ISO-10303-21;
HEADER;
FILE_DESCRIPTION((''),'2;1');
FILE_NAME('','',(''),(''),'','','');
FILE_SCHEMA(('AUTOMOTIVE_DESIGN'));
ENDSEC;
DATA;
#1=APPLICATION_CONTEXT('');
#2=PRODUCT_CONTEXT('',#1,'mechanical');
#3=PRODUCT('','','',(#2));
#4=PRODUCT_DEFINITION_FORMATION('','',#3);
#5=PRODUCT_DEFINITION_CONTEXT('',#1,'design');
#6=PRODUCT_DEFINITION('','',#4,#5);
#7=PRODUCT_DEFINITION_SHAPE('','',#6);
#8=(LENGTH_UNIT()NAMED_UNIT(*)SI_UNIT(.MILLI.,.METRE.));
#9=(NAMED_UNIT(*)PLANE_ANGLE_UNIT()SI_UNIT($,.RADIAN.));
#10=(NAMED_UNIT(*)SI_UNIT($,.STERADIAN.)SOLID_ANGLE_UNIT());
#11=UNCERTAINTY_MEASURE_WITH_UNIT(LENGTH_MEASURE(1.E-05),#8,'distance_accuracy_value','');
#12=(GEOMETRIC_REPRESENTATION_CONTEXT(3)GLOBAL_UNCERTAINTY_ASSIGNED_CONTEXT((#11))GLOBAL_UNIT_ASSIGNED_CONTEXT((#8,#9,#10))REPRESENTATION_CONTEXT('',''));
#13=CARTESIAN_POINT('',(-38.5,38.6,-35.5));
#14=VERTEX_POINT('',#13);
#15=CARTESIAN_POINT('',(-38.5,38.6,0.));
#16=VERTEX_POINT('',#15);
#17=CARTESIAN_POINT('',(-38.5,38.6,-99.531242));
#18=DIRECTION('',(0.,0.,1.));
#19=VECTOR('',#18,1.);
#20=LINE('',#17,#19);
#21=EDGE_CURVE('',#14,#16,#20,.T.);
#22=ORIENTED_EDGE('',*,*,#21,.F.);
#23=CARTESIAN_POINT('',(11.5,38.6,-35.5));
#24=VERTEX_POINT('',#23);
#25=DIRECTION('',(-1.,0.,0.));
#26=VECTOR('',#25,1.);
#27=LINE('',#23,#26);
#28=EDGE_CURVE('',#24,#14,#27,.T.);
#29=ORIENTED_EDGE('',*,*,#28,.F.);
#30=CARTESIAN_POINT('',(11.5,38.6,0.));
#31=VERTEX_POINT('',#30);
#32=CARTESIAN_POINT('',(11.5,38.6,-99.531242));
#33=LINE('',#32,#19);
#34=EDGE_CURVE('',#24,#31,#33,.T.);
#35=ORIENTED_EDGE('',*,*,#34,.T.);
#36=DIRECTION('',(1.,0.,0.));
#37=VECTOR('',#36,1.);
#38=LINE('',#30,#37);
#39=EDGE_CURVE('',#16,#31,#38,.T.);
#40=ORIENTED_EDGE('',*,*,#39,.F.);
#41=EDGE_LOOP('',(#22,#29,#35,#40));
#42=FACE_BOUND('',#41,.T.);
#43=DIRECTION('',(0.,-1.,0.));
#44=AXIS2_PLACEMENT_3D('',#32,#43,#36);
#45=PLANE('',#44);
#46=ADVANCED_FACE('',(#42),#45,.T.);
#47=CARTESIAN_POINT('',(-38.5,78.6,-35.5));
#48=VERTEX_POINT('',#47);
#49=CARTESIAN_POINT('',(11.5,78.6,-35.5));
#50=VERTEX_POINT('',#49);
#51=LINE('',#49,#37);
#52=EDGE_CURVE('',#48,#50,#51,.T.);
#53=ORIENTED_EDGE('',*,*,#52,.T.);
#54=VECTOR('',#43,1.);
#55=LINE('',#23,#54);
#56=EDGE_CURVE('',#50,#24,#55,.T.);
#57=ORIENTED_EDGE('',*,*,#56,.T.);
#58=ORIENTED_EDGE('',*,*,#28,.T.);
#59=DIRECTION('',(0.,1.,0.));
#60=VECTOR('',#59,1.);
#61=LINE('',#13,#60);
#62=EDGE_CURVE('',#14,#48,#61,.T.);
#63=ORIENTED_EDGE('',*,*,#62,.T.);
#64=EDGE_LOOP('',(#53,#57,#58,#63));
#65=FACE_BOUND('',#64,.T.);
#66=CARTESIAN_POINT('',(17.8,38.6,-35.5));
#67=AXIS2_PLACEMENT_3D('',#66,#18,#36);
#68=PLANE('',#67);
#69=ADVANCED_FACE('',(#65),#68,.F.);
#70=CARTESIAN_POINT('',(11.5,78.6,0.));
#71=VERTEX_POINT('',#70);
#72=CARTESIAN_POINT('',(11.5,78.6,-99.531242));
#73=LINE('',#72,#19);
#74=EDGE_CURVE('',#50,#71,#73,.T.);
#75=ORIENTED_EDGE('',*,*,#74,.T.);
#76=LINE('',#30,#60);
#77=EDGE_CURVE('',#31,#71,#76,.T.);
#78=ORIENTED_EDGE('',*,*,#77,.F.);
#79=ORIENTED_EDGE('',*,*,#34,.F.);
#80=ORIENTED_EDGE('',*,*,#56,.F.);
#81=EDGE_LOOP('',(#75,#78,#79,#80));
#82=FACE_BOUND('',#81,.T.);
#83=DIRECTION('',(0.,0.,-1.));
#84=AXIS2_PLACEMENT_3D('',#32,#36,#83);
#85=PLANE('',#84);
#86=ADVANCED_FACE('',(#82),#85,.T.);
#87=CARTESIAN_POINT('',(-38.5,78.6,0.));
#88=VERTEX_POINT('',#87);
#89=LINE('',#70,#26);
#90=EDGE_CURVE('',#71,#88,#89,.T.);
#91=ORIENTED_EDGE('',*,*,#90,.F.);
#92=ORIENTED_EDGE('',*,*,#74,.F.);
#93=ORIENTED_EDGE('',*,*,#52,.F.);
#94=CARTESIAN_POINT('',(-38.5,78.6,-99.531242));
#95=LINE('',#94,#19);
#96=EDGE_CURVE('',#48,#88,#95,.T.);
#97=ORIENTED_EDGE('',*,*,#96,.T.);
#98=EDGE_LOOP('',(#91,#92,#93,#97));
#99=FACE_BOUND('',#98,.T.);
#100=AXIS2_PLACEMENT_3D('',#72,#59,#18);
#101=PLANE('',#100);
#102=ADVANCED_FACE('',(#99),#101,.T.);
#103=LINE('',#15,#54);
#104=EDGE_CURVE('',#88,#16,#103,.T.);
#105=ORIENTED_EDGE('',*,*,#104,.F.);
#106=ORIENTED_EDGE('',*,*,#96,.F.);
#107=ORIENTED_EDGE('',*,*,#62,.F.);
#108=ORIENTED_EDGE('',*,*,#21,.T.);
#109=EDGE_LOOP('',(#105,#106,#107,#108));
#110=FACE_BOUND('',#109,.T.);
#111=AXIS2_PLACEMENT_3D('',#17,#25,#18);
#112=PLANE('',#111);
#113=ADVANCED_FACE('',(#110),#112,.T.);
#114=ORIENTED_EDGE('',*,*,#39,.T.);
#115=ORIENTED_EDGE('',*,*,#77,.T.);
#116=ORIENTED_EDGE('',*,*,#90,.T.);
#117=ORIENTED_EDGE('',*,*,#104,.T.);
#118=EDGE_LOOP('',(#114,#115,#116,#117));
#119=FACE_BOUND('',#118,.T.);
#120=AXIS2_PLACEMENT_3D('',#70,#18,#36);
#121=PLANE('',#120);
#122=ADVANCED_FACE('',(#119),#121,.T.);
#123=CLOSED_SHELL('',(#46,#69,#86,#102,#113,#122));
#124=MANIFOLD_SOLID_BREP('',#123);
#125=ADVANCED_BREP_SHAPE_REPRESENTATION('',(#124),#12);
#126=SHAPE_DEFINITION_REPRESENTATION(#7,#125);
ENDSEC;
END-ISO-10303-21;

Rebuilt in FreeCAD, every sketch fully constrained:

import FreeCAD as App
import Part
import Sketcher

V = App.Vector


def add_polygon(sketch, points):
    """Adds a closed chain of lines whose ends are joined by coincident constraints."""
    first, n = sketch.GeometryCount, len(points)
    for a, b in zip(points, points[1:] + points[:1]):
        sketch.addGeometry(Part.LineSegment(App.Vector(*a, 0), App.Vector(*b, 0)), False)
    for i in range(n):
        sketch.addConstraint(Sketcher.Constraint("Coincident", first + i, 2, first + (i + 1) % n, 1))

doc = App.newDocument("Part")
body = doc.addObject("PartDesign::Body", "Body")

# Sketch on XY plane
sketch1 = doc.addObject("Sketcher::SketchObject", "Sketch")
body.addObject(sketch1)
sketch1.AttachmentSupport = (doc.XY_Plane, [""])
sketch1.MapMode = "FlatFace"
add_polygon(sketch1, [(-38.5, 78.6), (-38.5, 38.6), (11.5, 38.6), (11.5, 78.6)])  # lines 0-3
sketch1.addConstraint([
    Sketcher.Constraint("Vertical", 0),
    Sketcher.Constraint("Horizontal", 1),
    Sketcher.Constraint("Vertical", 2),
    Sketcher.Constraint("Horizontal", 3),
    Sketcher.Constraint("DistanceX", 1, 1, 1, 2, 50.0),
    Sketcher.Constraint("DistanceY", 0, 2, 0, 1, 40.0),
    Sketcher.Constraint("DistanceX", 0, 2, -1, 1, 38.5),
    Sketcher.Constraint("DistanceY", -1, 1, 0, 2, 38.6),
])
pad1 = doc.addObject("PartDesign::Pad", "Pad")
body.addObject(pad1)
pad1.Profile = sketch1
pad1.Length = 35.5
pad1.Reversed = True

doc.recompute()
